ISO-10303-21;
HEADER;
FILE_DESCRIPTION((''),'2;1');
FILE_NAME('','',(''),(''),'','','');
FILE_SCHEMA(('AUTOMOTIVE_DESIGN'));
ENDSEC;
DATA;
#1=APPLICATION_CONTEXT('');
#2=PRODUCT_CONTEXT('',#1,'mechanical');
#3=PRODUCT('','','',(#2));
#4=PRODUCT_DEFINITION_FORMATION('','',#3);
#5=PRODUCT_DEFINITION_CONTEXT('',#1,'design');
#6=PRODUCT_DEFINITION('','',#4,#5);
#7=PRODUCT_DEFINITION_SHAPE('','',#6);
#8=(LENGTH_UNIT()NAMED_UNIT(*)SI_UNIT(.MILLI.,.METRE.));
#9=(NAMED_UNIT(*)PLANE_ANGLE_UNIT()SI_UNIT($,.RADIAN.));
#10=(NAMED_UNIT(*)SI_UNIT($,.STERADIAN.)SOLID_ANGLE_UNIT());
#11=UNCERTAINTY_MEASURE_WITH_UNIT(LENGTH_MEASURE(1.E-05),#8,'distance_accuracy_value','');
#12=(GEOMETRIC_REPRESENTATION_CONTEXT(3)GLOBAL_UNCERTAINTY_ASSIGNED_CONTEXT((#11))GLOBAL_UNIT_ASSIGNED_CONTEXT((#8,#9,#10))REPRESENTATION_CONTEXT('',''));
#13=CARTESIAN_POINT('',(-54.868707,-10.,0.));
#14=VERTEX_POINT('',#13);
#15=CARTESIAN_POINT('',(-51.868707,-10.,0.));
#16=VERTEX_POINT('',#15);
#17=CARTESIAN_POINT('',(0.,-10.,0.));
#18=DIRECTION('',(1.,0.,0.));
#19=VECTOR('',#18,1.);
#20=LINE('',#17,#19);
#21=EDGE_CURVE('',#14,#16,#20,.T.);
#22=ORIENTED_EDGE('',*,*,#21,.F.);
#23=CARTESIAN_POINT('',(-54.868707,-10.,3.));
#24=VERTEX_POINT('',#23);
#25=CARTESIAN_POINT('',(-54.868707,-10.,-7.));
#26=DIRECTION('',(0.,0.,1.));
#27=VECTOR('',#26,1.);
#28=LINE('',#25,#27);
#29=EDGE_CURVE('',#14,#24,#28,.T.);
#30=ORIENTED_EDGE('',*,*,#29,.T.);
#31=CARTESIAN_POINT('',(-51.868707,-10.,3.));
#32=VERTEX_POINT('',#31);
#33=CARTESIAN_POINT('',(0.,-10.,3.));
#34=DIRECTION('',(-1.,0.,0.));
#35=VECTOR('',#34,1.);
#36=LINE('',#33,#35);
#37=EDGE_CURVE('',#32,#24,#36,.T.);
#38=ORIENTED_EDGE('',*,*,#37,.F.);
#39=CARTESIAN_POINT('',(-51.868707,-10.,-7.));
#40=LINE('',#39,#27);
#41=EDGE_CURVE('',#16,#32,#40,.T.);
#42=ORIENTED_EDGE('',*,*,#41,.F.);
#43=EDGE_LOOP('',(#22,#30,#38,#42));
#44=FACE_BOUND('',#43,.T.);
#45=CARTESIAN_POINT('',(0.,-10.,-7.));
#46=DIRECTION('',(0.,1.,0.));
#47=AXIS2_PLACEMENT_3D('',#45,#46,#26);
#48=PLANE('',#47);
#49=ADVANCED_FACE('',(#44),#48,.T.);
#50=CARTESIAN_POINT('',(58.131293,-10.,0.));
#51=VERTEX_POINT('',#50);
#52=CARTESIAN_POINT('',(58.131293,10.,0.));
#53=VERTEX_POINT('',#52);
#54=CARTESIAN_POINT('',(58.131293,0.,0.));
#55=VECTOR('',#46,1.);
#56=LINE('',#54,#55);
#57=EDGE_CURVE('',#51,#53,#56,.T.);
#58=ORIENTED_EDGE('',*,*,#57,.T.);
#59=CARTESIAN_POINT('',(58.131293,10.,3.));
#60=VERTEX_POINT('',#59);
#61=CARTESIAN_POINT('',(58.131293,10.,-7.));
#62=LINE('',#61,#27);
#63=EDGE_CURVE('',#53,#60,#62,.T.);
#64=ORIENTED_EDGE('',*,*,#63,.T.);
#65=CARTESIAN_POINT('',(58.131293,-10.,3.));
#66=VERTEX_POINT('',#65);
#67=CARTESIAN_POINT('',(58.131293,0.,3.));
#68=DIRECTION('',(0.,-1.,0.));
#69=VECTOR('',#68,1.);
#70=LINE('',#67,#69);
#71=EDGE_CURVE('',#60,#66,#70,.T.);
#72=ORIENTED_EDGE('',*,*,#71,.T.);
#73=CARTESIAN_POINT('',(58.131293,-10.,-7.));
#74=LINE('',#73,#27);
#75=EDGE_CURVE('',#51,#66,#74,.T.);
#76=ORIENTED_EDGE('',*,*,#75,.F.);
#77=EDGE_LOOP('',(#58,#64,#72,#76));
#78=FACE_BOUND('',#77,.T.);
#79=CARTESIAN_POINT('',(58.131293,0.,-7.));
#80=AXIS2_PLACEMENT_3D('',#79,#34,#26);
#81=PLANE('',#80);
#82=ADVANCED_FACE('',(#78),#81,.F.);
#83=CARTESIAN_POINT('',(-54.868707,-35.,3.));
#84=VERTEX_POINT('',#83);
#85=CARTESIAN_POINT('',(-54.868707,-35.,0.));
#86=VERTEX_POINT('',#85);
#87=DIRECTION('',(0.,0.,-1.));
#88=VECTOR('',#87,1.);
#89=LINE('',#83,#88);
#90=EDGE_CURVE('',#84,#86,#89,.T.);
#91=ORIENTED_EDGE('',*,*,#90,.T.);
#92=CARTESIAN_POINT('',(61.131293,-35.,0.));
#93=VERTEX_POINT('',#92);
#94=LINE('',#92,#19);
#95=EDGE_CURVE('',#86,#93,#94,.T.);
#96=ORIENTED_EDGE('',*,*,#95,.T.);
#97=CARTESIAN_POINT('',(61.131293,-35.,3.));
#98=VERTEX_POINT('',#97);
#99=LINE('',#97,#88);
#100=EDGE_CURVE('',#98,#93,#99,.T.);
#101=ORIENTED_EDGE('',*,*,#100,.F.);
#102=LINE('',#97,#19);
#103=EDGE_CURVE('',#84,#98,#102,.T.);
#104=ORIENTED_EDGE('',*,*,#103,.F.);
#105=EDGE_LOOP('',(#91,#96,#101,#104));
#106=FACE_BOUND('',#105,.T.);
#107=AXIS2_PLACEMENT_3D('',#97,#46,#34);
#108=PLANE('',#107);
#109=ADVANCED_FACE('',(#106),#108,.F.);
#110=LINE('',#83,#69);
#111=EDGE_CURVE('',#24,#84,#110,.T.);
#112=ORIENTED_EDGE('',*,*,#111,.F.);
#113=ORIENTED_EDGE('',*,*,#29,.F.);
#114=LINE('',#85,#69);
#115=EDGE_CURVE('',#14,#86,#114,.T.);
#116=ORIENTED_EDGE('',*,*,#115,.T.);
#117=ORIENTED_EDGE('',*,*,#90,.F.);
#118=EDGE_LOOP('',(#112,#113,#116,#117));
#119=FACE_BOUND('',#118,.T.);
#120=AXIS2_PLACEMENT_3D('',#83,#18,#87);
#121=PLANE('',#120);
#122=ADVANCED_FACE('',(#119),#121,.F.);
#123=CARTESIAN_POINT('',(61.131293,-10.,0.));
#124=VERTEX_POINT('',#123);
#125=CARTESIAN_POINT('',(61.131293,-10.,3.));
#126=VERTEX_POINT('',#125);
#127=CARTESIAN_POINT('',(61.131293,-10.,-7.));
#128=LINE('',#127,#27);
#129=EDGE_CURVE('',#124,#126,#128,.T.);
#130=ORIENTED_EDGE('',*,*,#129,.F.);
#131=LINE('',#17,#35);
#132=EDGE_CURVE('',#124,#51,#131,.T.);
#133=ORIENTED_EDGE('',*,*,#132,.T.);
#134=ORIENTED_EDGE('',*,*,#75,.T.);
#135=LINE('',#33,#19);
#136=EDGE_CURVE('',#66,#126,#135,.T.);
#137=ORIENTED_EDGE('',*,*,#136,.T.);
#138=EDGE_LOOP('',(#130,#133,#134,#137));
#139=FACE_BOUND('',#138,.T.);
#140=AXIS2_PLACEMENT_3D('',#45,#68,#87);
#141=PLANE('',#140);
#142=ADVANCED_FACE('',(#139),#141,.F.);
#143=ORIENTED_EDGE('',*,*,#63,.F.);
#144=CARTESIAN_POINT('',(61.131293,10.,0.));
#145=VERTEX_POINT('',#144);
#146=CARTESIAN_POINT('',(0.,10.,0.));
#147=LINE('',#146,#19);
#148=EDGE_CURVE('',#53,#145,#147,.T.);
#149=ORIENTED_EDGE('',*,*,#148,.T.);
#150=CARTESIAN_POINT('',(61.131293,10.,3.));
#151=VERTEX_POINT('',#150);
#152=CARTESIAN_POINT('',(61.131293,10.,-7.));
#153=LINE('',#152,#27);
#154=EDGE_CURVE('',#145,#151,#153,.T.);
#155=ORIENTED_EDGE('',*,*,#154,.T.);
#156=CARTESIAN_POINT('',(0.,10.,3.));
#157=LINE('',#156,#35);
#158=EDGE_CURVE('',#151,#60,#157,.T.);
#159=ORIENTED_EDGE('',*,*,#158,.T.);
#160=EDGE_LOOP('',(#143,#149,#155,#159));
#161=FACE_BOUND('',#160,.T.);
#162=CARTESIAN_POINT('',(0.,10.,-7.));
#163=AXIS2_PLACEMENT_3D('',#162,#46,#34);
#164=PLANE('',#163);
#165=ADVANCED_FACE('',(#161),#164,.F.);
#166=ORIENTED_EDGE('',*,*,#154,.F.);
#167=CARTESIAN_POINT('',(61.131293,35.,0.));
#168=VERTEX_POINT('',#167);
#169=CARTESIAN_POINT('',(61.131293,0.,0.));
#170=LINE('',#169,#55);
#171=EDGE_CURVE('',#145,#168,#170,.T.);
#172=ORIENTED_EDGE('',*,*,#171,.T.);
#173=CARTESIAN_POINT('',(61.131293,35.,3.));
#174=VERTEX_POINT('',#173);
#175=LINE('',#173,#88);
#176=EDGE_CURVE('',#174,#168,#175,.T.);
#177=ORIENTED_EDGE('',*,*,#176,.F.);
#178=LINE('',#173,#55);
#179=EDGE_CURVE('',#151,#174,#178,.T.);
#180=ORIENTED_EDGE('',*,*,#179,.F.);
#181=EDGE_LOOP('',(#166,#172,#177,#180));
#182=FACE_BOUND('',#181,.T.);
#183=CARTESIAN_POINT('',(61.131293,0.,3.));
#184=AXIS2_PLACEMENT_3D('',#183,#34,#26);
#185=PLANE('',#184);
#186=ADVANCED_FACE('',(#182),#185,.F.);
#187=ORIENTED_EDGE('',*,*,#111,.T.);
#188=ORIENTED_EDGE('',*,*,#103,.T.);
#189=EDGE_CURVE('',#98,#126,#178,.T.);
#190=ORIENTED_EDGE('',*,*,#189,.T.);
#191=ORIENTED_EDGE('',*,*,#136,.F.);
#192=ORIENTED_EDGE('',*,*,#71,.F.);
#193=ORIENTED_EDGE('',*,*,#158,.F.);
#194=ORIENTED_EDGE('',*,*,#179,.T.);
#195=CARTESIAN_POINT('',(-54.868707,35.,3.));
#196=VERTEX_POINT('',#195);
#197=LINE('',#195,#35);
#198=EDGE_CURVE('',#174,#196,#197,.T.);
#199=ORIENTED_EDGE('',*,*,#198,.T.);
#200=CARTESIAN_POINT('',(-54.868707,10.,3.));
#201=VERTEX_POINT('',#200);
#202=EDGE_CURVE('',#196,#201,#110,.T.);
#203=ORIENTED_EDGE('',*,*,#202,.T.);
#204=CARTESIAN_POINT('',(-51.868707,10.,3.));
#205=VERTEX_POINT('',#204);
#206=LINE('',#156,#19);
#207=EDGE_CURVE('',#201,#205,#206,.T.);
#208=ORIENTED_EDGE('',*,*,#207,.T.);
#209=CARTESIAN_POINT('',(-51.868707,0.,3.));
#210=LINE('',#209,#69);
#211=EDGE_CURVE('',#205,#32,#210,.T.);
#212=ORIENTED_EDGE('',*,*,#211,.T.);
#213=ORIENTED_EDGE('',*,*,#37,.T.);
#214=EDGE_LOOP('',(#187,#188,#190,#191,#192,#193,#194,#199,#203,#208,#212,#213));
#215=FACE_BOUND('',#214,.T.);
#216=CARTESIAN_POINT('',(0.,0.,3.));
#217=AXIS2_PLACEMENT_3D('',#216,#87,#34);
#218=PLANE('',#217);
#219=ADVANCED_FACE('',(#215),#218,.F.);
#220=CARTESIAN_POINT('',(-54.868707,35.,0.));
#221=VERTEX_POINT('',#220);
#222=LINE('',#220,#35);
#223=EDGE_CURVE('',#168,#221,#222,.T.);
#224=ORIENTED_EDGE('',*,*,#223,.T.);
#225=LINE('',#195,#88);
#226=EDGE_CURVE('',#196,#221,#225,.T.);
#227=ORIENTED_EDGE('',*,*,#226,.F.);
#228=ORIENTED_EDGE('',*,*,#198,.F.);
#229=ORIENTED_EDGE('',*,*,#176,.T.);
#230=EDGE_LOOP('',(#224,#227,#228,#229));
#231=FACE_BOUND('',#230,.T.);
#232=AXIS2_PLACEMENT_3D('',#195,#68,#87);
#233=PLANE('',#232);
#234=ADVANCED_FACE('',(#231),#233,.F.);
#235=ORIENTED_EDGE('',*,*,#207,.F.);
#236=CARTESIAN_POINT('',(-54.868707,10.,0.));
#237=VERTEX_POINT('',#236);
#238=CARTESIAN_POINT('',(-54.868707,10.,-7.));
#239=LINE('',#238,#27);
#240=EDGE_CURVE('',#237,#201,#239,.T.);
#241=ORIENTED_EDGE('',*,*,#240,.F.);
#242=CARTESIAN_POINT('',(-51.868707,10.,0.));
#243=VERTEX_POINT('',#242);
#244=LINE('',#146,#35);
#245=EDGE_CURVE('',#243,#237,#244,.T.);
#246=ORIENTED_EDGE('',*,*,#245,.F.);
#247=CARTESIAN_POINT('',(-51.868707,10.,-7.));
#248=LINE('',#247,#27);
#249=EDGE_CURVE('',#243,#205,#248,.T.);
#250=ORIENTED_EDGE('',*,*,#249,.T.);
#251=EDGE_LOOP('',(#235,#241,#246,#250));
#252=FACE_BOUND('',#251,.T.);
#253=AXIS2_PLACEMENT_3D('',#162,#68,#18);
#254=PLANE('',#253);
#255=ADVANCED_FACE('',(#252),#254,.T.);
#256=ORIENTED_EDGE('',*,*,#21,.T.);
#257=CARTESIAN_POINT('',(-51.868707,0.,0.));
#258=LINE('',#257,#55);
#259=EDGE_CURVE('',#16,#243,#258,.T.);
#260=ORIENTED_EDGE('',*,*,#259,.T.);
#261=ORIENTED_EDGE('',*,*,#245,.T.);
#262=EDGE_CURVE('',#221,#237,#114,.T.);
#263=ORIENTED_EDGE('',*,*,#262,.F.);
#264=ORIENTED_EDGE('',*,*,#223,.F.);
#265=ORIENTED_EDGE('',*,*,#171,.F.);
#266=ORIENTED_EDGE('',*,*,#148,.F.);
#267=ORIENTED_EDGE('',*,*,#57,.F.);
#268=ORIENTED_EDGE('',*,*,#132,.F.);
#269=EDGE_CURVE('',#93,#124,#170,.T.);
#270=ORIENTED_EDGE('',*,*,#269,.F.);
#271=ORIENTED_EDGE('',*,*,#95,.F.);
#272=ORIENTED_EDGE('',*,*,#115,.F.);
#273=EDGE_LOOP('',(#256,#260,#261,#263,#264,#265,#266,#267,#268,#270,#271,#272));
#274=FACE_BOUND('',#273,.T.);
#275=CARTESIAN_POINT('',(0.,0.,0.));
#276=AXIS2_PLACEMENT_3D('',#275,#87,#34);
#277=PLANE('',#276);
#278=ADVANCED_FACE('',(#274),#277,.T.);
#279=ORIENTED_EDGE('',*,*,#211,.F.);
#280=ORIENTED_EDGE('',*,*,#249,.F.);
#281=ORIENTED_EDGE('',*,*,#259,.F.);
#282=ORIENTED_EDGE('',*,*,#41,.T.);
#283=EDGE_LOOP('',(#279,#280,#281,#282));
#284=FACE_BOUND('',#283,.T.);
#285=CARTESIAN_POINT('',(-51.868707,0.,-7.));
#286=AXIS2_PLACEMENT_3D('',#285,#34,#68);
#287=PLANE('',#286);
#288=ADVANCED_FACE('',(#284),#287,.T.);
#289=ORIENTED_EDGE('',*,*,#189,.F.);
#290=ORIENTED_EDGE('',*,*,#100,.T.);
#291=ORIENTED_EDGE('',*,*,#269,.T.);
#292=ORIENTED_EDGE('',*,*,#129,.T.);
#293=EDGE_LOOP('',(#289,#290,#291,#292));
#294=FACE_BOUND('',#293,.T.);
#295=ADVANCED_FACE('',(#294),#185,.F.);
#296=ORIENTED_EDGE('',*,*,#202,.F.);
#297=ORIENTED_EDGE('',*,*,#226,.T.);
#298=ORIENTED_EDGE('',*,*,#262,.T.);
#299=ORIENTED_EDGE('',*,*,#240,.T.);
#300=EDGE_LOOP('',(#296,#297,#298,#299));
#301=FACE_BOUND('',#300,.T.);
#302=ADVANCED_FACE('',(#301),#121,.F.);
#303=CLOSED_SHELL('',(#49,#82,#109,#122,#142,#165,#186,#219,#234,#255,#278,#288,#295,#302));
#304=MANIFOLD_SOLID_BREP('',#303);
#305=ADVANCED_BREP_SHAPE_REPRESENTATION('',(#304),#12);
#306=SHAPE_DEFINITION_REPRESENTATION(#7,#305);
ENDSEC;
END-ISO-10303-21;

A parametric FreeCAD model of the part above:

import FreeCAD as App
import Part
import Sketcher

V = App.Vector
Q = App.Units.Quantity


def add_polygon(sketch, points):
    """Adds a closed chain of lines whose ends are joined by coincident constraints."""
    first, n = sketch.GeometryCount, len(points)
    for a, b in zip(points, points[1:] + points[:1]):
        sketch.addGeometry(Part.LineSegment(App.Vector(*a, 0), App.Vector(*b, 0)), False)
    for i in range(n):
        sketch.addConstraint(Sketcher.Constraint("Coincident", first + i, 2, first + (i + 1) % n, 1))

doc = App.newDocument("Part")
body = doc.addObject("PartDesign::Body", "Body")

# Sketch on XY plane
sketch1 = body.newObject("Sketcher::SketchObject", "Sketch")
sketch1.AttachmentSupport = (doc.getObject("XY_Plane"), [""])
sketch1.MapMode = "FlatFace"
add_polygon(sketch1, [(61, -35), (61, 35), (-55, 35), (-55, -35)])  # lines 0-3
sketch1.addConstraint(Sketcher.Constraint("Vertical", 0))
sketch1.addConstraint(Sketcher.Constraint("Horizontal", 1))
sketch1.addConstraint(Sketcher.Constraint("Vertical", 2))
sketch1.addConstraint(Sketcher.Constraint("Horizontal", 3))
sketch1.addConstraint(Sketcher.Constraint("DistanceX", 1, 2, 1, 1, Q("116 mm")))
sketch1.addConstraint(Sketcher.Constraint("DistanceY", 0, 1, 0, 2, Q("70 mm")))
sketch1.addConstraint(Sketcher.Constraint("DistanceY", -1, 1, 0, 2, Q("35 mm")))
sketch1.addConstraint(Sketcher.Constraint("DistanceX", -1, 1, 0, 2, Q("61.131293 mm")))
pad1 = body.newObject("PartDesign::Pad", "Pad")
pad1.Profile = sketch1
pad1.Length = 3

# Sketch on XY plane
sketch2 = body.newObject("Sketcher::SketchObject", "Sketch001")
sketch2.AttachmentSupport = (doc.getObject("XY_Plane"), [""])
sketch2.MapMode = "FlatFace"
sketch2.AttachmentOffset = App.Placement(V(0, 0, 3), App.Rotation())
add_polygon(sketch2, [(58.1, 10), (58.1, -10), (61.1, -10), (61.1, 10)])  # lines 0-3
add_polygon(sketch2, [(-54.9, 10), (-54.9, -10), (-51.9, -10), (-51.9, 10)])  # lines 4-7
sketch2.addConstraint(Sketcher.Constraint("Vertical", 0))
sketch2.addConstraint(Sketcher.Constraint("Horizontal", 1))
sketch2.addConstraint(Sketcher.Constraint("Vertical", 2))
sketch2.addConstraint(Sketcher.Constraint("Horizontal", 3))
sketch2.addConstraint(Sketcher.Constraint("Vertical", 4))
sketch2.addConstraint(Sketcher.Constraint("Horizontal", 5))
sketch2.addConstraint(Sketcher.Constraint("Vertical", 6))
sketch2.addConstraint(Sketcher.Constraint("Horizontal", 7))
sketch2.addConstraint(Sketcher.Constraint("Horizontal", 1, 2, 4, 2))
sketch2.addConstraint(Sketcher.Constraint("Horizontal", 3, 2, 6, 2))
sketch2.addConstraint(Sketcher.Constraint("Equal", 3, 5))
sketch2.addConstraint(Sketcher.Constraint("DistanceX", 1, 1, 1, 2, Q("3 mm")))
sketch2.addConstraint(Sketcher.Constraint("DistanceY", 0, 2, 0, 1, Q("20 mm")))
sketch2.addConstraint(Sketcher.Constraint("DistanceY", 0, 2, -1, 1, Q("10 mm")))
sketch2.addConstraint(Sketcher.Constraint("DistanceX", 4, 2, 0, 2, Q("113 mm")))
sketch2.addConstraint(Sketcher.Constraint("DistanceX", -1, 1, 0, 2, Q("58.131293 mm")))
pocket1 = body.newObject("PartDesign::Pocket", "Pocket")
pocket1.Profile = sketch2
pocket1.Length = 10

doc.recompute()
